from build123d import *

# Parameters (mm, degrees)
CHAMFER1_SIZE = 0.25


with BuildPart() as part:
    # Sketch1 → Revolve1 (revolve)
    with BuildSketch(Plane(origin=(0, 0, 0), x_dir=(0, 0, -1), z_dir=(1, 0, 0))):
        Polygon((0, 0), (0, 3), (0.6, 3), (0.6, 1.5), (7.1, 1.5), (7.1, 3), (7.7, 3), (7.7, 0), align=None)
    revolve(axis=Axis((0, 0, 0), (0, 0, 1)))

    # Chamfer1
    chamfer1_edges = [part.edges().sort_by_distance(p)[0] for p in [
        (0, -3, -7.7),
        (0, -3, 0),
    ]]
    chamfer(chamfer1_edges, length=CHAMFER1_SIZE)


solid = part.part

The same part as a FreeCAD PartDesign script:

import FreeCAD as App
import Part
import Sketcher
from FreeCAD import Vector
Q = App.Units.Quantity


def edges_at(feature, points):
    """Names of the edges that pass closest to the given points."""
    edges = feature.Shape.Edges
    near = lambda p: min(range(len(edges)), key=lambda i: edges[i].distToShape(Part.Vertex(*p))[0])
    return sorted({f"Edge{near(p) + 1}" for p in points})

doc = App.newDocument("Part")
body = doc.addObject("PartDesign::Body", "Body")

# Sketch on YZ plane
sketch1 = body.newObject("Sketcher::SketchObject", "Sketch")
sketch1.AttachmentSupport = (doc.getObject("YZ_Plane"), [""])
sketch1.MapMode = "FlatFace"
sketch1.addGeometry(Part.LineSegment(Vector(3, 0, 0), Vector(0, 0, 0)), False)
sketch1.addGeometry(Part.LineSegment(Vector(0, 0, 0), Vector(0, -7.7, 0)), False)
sketch1.addGeometry(Part.LineSegment(Vector(0, -7.7, 0), Vector(3, -7.7, 0)), False)
sketch1.addGeometry(Part.LineSegment(Vector(3, -7.7, 0), Vector(3, -7.1, 0)), False)
sketch1.addGeometry(Part.LineSegment(Vector(3, -7.1, 0), Vector(1.5, -7.1, 0)), False)
sketch1.addGeometry(Part.LineSegment(Vector(1.5, -7.1, 0), Vector(1.5, -0.6, 0)), False)
sketch1.addGeometry(Part.LineSegment(Vector(1.5, -0.6, 0), Vector(3, -0.6, 0)), False)
sketch1.addGeometry(Part.LineSegment(Vector(3, -0.6, 0), Vector(3, 0, 0)), False)
sketch1.addConstraint(Sketcher.Constraint("Coincident", 0, 2, 1, 1))
sketch1.addConstraint(Sketcher.Constraint("Coincident", 1, 2, 2, 1))
sketch1.addConstraint(Sketcher.Constraint("Coincident", 2, 2, 3, 1))
sketch1.addConstraint(Sketcher.Constraint("Coincident", 3, 2, 4, 1))
sketch1.addConstraint(Sketcher.Constraint("Coincident", 4, 2, 5, 1))
sketch1.addConstraint(Sketcher.Constraint("Coincident", 5, 2, 6, 1))
sketch1.addConstraint(Sketcher.Constraint("Coincident", 6, 2, 7, 1))
sketch1.addConstraint(Sketcher.Constraint("Coincident", 7, 2, 0, 1))
sketch1.addConstraint(Sketcher.Constraint("Horizontal", 0))
sketch1.addConstraint(Sketcher.Constraint("Vertical", 1))
sketch1.addConstraint(Sketcher.Constraint("Horizontal", 2))
sketch1.addConstraint(Sketcher.Constraint("Vertical", 3))
sketch1.addConstraint(Sketcher.Constraint("Horizontal", 4))
sketch1.addConstraint(Sketcher.Constraint("Vertical", 5))
sketch1.addConstraint(Sketcher.Constraint("Horizontal", 6))
sketch1.addConstraint(Sketcher.Constraint("Vertical", 7))
sketch1.addConstraint(Sketcher.Constraint("Coincident", 0, 2, -1, 1))
sketch1.addConstraint(Sketcher.Constraint("Vertical", 3, 2, 6, 2))
sketch1.addConstraint(Sketcher.Constraint("Equal", 3, 7))
sketch1.addConstraint(Sketcher.Constraint("DistanceX", 0, 2, 0, 1, Q("3 mm")))
sketch1.addConstraint(Sketcher.Constraint("DistanceX", 4, 2, 4, 1, Q("1.5 mm")))
sketch1.addConstraint(Sketcher.Constraint("DistanceY", 1, 2, 1, 1, Q("7.7 mm")))
sketch1.addConstraint(Sketcher.Constraint("DistanceY", 3, 1, 3, 2, Q("0.6 mm")))
revolution = body.newObject("PartDesign::Revolution", "Revolution")
revolution.Profile = sketch1
revolution.ReferenceAxis = (sketch1, ["V_Axis"])
revolution.Angle = 360
doc.recompute()

chamfer = body.newObject("PartDesign::Chamfer", "Chamfer")
chamfer.Base = (revolution, edges_at(revolution, [(0, -3, -7.7), (0, -3, 0)]))
chamfer.Size = 0.25

doc.recompute()
